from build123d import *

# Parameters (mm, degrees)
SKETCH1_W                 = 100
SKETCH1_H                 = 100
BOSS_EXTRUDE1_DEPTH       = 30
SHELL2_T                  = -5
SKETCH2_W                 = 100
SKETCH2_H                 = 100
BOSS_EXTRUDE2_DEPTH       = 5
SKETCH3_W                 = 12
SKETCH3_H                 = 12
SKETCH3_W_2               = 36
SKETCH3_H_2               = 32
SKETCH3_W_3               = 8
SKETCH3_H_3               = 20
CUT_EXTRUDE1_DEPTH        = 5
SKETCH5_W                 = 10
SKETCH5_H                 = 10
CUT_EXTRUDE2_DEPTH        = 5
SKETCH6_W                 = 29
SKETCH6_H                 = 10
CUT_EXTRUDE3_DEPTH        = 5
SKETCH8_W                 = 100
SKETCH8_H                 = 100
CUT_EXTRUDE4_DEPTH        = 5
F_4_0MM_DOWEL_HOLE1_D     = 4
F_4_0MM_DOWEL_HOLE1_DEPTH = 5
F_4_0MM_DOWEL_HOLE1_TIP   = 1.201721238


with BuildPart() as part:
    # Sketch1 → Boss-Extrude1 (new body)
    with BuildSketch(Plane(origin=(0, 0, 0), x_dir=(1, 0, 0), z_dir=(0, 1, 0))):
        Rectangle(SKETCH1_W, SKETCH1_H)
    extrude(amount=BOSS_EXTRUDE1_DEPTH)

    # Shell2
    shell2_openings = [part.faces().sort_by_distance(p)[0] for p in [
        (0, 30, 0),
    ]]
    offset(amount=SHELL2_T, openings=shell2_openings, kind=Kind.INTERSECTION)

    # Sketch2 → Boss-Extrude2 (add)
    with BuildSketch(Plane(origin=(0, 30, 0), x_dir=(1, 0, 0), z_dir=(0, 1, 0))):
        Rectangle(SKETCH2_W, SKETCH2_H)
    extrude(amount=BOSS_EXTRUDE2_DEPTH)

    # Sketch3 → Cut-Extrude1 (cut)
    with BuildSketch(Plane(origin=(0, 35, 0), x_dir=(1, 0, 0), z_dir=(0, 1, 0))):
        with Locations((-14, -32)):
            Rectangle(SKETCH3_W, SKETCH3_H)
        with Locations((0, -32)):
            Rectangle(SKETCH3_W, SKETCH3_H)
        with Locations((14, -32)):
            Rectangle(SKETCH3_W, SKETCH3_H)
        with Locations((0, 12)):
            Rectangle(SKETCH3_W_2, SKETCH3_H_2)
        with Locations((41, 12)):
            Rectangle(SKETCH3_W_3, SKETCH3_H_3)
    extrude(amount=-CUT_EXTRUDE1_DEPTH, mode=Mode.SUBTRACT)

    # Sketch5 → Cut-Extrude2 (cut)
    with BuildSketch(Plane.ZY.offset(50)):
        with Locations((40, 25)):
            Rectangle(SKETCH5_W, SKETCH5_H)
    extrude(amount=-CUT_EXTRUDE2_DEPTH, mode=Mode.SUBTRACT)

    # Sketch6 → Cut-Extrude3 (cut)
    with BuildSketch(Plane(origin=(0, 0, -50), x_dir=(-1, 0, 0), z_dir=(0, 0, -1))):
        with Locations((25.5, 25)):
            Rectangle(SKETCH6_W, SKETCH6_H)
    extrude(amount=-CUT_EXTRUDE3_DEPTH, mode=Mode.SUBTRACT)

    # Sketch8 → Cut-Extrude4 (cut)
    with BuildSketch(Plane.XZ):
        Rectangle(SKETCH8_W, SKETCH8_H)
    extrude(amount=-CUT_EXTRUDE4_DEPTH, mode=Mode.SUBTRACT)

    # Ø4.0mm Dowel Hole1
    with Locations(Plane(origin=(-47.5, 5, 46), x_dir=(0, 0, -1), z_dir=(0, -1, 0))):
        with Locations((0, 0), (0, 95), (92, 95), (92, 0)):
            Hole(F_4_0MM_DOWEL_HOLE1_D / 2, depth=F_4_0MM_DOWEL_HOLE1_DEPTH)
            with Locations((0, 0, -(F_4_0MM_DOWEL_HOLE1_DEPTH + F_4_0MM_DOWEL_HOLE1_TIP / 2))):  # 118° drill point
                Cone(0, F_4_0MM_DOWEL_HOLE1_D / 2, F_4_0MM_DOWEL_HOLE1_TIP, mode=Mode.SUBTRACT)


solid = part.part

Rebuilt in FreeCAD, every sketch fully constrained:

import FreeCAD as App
import Part
import Sketcher

V = App.Vector
Q = App.Units.Quantity


def faces_at(feature, points):
    """Names of the faces that lie closest to the given points."""
    faces = feature.Shape.Faces
    near = lambda p: min(range(len(faces)), key=lambda i: faces[i].distToShape(Part.Vertex(*p))[0])
    return sorted({f"Face{near(p) + 1}" for p in points})


def add_polygon(sketch, points):
    """Adds a closed chain of lines whose ends are joined by coincident constraints."""
    first, n = sketch.GeometryCount, len(points)
    for a, b in zip(points, points[1:] + points[:1]):
        sketch.addGeometry(Part.LineSegment(App.Vector(*a, 0), App.Vector(*b, 0)), False)
    for i in range(n):
        sketch.addConstraint(Sketcher.Constraint("Coincident", first + i, 2, first + (i + 1) % n, 1))

doc = App.newDocument("Part")
params = doc.addObject("Spreadsheet::Sheet", "Params")
for row, (alias, value) in enumerate([
    ("sketch1_width", "100 mm"),
    ("pad1_length", "30 mm"),
    ("thickness_wall", "5 mm"),
    ("sketch2_width", "100 mm"),
    ("pad2_length", "5 mm"),
    ("sketch3_width", "12 mm"),
    ("sketch3_width2", "36 mm"),
    ("sketch3_width3", "8 mm"),
    ("sketch3_height", "32 mm"),
    ("sketch3_height2", "20 mm"),
    ("pocket1_length", "5 mm"),
    ("sketch4_width", "10 mm"),
    ("pocket2_length", "5 mm"),
    ("sketch5_width", "29 mm"),
    ("sketch5_height", "10 mm"),
    ("pocket3_length", "5 mm"),
    ("sketch6_width", "100 mm"),
    ("pocket4_length", "5 mm"),
    ("sketch7_diameter", "4 mm"),
    ("hole_diameter", "4 mm"),
    ("hole_depth", "5 mm"),
], start=1):
    params.set(f"A{row}", alias)
    params.set(f"B{row}", "=" + value)
    params.setAlias(f"B{row}", alias)

body = doc.addObject("PartDesign::Body", "Body")

sketch1 = body.newObject("Sketcher::SketchObject", "Sketch")
sketch1.AttachmentSupport = (doc.getObject("XZ_Plane"), [""])
sketch1.MapMode = "FlatFace"
add_polygon(sketch1, [(-50, -50), (-50, 50), (50, 50), (50, -50)])
sketch1.addConstraint([
    Sketcher.Constraint("Vertical", 0),
    Sketcher.Constraint("Horizontal", 1),
    Sketcher.Constraint("Vertical", 2),
    Sketcher.Constraint("Horizontal", 3),
    Sketcher.Constraint("Symmetric", 0, 2, 2, 2, -1, 1),
    Sketcher.Constraint("Equal", 3, 0),
    Sketcher.Constraint("DistanceX", 1, 1, 1, 2, Q("100 mm")),
])
sketch1.setExpression("Constraints[10]", "Params.sketch1_width")
pad1 = body.newObject("PartDesign::Pad", "Pad")
pad1.Profile = sketch1
pad1.setExpression("Length", "Params.pad1_length")
pad1.Reversed = True
doc.recompute()

thickness = body.newObject("PartDesign::Thickness", "Thickness")
thickness.Base = (pad1, faces_at(pad1, [(0, 30, 0)]))
thickness.setExpression("Value", "Params.thickness_wall")
thickness.Reversed = True
thickness.Join = "Intersection"

sketch2 = body.newObject("Sketcher::SketchObject", "Sketch001")
sketch2.AttachmentSupport = (doc.getObject("XZ_Plane"), [""])
sketch2.MapMode = "FlatFace"
sketch2.AttachmentOffset = App.Placement(V(0, 0, -30), App.Rotation())
add_polygon(sketch2, [(-50, -50), (-50, 50), (50, 50), (50, -50)])
sketch2.addConstraint([
    Sketcher.Constraint("Vertical", 0),
    Sketcher.Constraint("Horizontal", 1),
    Sketcher.Constraint("Vertical", 2),
    Sketcher.Constraint("Horizontal", 3),
    Sketcher.Constraint("Symmetric", 0, 2, 2, 2, -1, 1),
    Sketcher.Constraint("Equal", 3, 0),
    Sketcher.Constraint("DistanceX", 1, 1, 1, 2, Q("100 mm")),
])
sketch2.setExpression("Constraints[10]", "Params.sketch2_width")
pad2 = body.newObject("PartDesign::Pad", "Pad001")
pad2.Profile = sketch2
pad2.setExpression("Length", "Params.pad2_length")
pad2.Reversed = True

sketch3 = body.newObject("Sketcher::SketchObject", "Sketch002")
sketch3.AttachmentSupport = (doc.getObject("XZ_Plane"), [""])
sketch3.MapMode = "FlatFace"
sketch3.AttachmentOffset = App.Placement(V(0, 0, -35), App.Rotation())
add_polygon(sketch3, [(-20, 26), (-20, 38), (-8, 38), (-8, 26)])
add_polygon(sketch3, [(-6, 26), (-6, 38), (6, 38), (6, 26)])
add_polygon(sketch3, [(8, 26), (8, 38), (20, 38), (20, 26)])
add_polygon(sketch3, [(-18, -28), (-18, 4), (18, 4), (18, -28)])
add_polygon(sketch3, [(37, -22), (37, -2), (45, -2), (45, -22)])
sketch3.addConstraint([
    Sketcher.Constraint("Vertical", 0),
    Sketcher.Constraint("Horizontal", 1),
    Sketcher.Constraint("Vertical", 2),
    Sketcher.Constraint("Horizontal", 3),
    Sketcher.Constraint("Vertical", 4),
    Sketcher.Constraint("Horizontal", 5),
    Sketcher.Constraint("Vertical", 6),
    Sketcher.Constraint("Horizontal", 7),
    Sketcher.Constraint("Vertical", 8),
    Sketcher.Constraint("Horizontal", 9),
    Sketcher.Constraint("Vertical", 10),
    Sketcher.Constraint("Horizontal", 11),
    Sketcher.Constraint("Vertical", 12),
    Sketcher.Constraint("Horizontal", 13),
    Sketcher.Constraint("Vertical", 14),
    Sketcher.Constraint("Horizontal", 15),
    Sketcher.Constraint("Vertical", 16),
    Sketcher.Constraint("Horizontal", 17),
    Sketcher.Constraint("Vertical", 18),
    Sketcher.Constraint("Horizontal", 19),
    Sketcher.Constraint("Symmetric", 1, 2, 8, 2, -2),
    Sketcher.Constraint("Symmetric", 3, 2, 10, 2, -2),
    Sketcher.Constraint("Horizontal", 1, 2, 4, 2),
    Sketcher.Constraint("Horizontal", 3, 2, 6, 2),
    Sketcher.Constraint("Equal", 3, 5),
    Sketcher.Constraint("Equal", 11, 0),
    Sketcher.Constraint("DistanceX", 1, 1, 1, 2, Q("12 mm")),
    Sketcher.Constraint("DistanceX", 13, 1, 13, 2, Q("36 mm")),
    Sketcher.Constraint("DistanceX", 17, 1, 17, 2, Q("8 mm")),
    Sketcher.Constraint("DistanceY", 12, 1, 12, 2, Q("32 mm")),
    Sketcher.Constraint("DistanceY", 16, 1, 16, 2, Q("20 mm")),
    Sketcher.Constraint("DistanceX", 0, 2, -1, 1, Q("20 mm")),
    Sketcher.Constraint("DistanceY", -1, 1, 0, 2, Q("38 mm")),
    Sketcher.Constraint("DistanceX", 4, 2, -1, 1, Q("6 mm")),
    Sketcher.Constraint("DistanceX", 12, 2, -1, 1, Q("18 mm")),
    Sketcher.Constraint("DistanceY", -1, 1, 12, 2, Q("4 mm")),
    Sketcher.Constraint("DistanceX", -1, 1, 16, 2, Q("37 mm")),
    Sketcher.Constraint("DistanceY", 16, 2, -1, 1, Q("2 mm")),
])
sketch3.setExpression("Constraints[46]", "Params.sketch3_width")
sketch3.setExpression("Constraints[47]", "Params.sketch3_width2")
sketch3.setExpression("Constraints[48]", "Params.sketch3_width3")
sketch3.setExpression("Constraints[49]", "Params.sketch3_height")
sketch3.setExpression("Constraints[50]", "Params.sketch3_height2")
pocket1 = body.newObject("PartDesign::Pocket", "Pocket")
pocket1.Profile = sketch3
pocket1.setExpression("Length", "Params.pocket1_length")
pocket1.Reversed = True

sketch4 = body.newObject("Sketcher::SketchObject", "Sketch003")
sketch4.AttachmentSupport = (doc.getObject("YZ_Plane"), [""])
sketch4.MapMode = "FlatFace"
sketch4.AttachmentOffset = App.Placement(V(0, 0, -50), App.Rotation())
add_polygon(sketch4, [(30, 35), (20, 35), (20, 45), (30, 45)])
sketch4.addConstraint([
    Sketcher.Constraint("Horizontal", 0),
    Sketcher.Constraint("Vertical", 1),
    Sketcher.Constraint("Horizontal", 2),
    Sketcher.Constraint("Vertical", 3),
    Sketcher.Constraint("Equal", 2, 1),
    Sketcher.Constraint("DistanceX", 0, 2, 0, 1, Q("10 mm")),
    Sketcher.Constraint("DistanceX", -1, 1, 0, 2, Q("20 mm")),
    Sketcher.Constraint("DistanceY", -1, 1, 0, 2, Q("35 mm")),
])
sketch4.setExpression("Constraints[9]", "Params.sketch4_width")
pocket2 = body.newObject("PartDesign::Pocket", "Pocket001")
pocket2.Profile = sketch4
pocket2.setExpression("Length", "Params.pocket2_length")
pocket2.Reversed = True

sketch5 = body.newObject("Sketcher::SketchObject", "Sketch004")
sketch5.AttachmentSupport = (doc.getObject("XY_Plane"), [""])
sketch5.MapMode = "FlatFace"
sketch5.AttachmentOffset = App.Placement(V(0, 0, -50), App.Rotation())
add_polygon(sketch5, [(-11, 30), (-11, 20), (-40, 20), (-40, 30)])
sketch5.addConstraint([
    Sketcher.Constraint("Vertical", 0),
    Sketcher.Constraint("Horizontal", 1),
    Sketcher.Constraint("Vertical", 2),
    Sketcher.Constraint("Horizontal", 3),
    Sketcher.Constraint("DistanceX", 1, 2, 1, 1, Q("29 mm")),
    Sketcher.Constraint("DistanceY", 0, 2, 0, 1, Q("10 mm")),
    Sketcher.Constraint("DistanceX", 0, 2, -1, 1, Q("11 mm")),
    Sketcher.Constraint("DistanceY", -1, 1, 0, 2, Q("20 mm")),
])
sketch5.setExpression("Constraints[8]", "Params.sketch5_width")
sketch5.setExpression("Constraints[9]", "Params.sketch5_height")
pocket3 = body.newObject("PartDesign::Pocket", "Pocket002")
pocket3.Profile = sketch5
pocket3.setExpression("Length", "Params.pocket3_length")
pocket3.Reversed = True

sketch6 = body.newObject("Sketcher::SketchObject", "Sketch005")
sketch6.AttachmentSupport = (doc.getObject("XZ_Plane"), [""])
sketch6.MapMode = "FlatFace"
add_polygon(sketch6, [(-50, 50), (-50, -50), (50, -50), (50, 50)])
sketch6.addConstraint([
    Sketcher.Constraint("Vertical", 0),
    Sketcher.Constraint("Horizontal", 1),
    Sketcher.Constraint("Vertical", 2),
    Sketcher.Constraint("Horizontal", 3),
    Sketcher.Constraint("Symmetric", 0, 2, 2, 2, -1, 1),
    Sketcher.Constraint("Equal", 3, 0),
    Sketcher.Constraint("DistanceX", 1, 1, 1, 2, Q("100 mm")),
])
sketch6.setExpression("Constraints[10]", "Params.sketch6_width")
pocket4 = body.newObject("PartDesign::Pocket", "Pocket003")
pocket4.Profile = sketch6
pocket4.setExpression("Length", "Params.pocket4_length")

sketch7 = body.newObject("Sketcher::SketchObject", "Sketch006")
sketch7.AttachmentSupport = (doc.getObject("XZ_Plane"), [""])
sketch7.MapMode = "FlatFace"
sketch7.AttachmentOffset = App.Placement(V(0, 0, -5), App.Rotation())
sketch7.addGeometry([
    Part.Circle(V(-47.5, 46, 0), V(0, 0, 1), 2),
    Part.Circle(V(47.5, 46, 0), V(0, 0, 1), 2),
    Part.Circle(V(47.5, -46, 0), V(0, 0, 1), 2),
    Part.Circle(V(-47.5, -46, 0), V(0, 0, 1), 2),
], False)
sketch7.addConstraint([
    Sketcher.Constraint("Equal", 0, 1),
    Sketcher.Constraint("Equal", 1, 2),
    Sketcher.Constraint("Equal", 2, 3),
    Sketcher.Constraint("Symmetric", 0, 3, 2, 3, -1, 1),
    Sketcher.Constraint("Symmetric", 1, 3, 3, 3, -1, 1),
    Sketcher.Constraint("Symmetric", 0, 3, 1, 3, -2),
    Sketcher.Constraint("Diameter", 0, Q("4 mm")),
    Sketcher.Constraint("DistanceY", -1, 1, 0, 3, Q("46 mm")),
    Sketcher.Constraint("DistanceX", 0, 3, 1, 3, Q("95 mm")),
])
sketch7.setExpression("Constraints[6]", "Params.sketch7_diameter")
doc.recompute()
hole = body.newObject("PartDesign::Hole", "Hole")
hole.Profile = sketch7
hole.ThreadType = "None"
hole.setExpression("Diameter", "Params.hole_diameter")
hole.DepthType = "Dimension"
hole.setExpression("Depth", "Params.hole_depth")
hole.DrillPoint = "Angled"
hole.DrillPointAngle = 118

doc.recompute()
